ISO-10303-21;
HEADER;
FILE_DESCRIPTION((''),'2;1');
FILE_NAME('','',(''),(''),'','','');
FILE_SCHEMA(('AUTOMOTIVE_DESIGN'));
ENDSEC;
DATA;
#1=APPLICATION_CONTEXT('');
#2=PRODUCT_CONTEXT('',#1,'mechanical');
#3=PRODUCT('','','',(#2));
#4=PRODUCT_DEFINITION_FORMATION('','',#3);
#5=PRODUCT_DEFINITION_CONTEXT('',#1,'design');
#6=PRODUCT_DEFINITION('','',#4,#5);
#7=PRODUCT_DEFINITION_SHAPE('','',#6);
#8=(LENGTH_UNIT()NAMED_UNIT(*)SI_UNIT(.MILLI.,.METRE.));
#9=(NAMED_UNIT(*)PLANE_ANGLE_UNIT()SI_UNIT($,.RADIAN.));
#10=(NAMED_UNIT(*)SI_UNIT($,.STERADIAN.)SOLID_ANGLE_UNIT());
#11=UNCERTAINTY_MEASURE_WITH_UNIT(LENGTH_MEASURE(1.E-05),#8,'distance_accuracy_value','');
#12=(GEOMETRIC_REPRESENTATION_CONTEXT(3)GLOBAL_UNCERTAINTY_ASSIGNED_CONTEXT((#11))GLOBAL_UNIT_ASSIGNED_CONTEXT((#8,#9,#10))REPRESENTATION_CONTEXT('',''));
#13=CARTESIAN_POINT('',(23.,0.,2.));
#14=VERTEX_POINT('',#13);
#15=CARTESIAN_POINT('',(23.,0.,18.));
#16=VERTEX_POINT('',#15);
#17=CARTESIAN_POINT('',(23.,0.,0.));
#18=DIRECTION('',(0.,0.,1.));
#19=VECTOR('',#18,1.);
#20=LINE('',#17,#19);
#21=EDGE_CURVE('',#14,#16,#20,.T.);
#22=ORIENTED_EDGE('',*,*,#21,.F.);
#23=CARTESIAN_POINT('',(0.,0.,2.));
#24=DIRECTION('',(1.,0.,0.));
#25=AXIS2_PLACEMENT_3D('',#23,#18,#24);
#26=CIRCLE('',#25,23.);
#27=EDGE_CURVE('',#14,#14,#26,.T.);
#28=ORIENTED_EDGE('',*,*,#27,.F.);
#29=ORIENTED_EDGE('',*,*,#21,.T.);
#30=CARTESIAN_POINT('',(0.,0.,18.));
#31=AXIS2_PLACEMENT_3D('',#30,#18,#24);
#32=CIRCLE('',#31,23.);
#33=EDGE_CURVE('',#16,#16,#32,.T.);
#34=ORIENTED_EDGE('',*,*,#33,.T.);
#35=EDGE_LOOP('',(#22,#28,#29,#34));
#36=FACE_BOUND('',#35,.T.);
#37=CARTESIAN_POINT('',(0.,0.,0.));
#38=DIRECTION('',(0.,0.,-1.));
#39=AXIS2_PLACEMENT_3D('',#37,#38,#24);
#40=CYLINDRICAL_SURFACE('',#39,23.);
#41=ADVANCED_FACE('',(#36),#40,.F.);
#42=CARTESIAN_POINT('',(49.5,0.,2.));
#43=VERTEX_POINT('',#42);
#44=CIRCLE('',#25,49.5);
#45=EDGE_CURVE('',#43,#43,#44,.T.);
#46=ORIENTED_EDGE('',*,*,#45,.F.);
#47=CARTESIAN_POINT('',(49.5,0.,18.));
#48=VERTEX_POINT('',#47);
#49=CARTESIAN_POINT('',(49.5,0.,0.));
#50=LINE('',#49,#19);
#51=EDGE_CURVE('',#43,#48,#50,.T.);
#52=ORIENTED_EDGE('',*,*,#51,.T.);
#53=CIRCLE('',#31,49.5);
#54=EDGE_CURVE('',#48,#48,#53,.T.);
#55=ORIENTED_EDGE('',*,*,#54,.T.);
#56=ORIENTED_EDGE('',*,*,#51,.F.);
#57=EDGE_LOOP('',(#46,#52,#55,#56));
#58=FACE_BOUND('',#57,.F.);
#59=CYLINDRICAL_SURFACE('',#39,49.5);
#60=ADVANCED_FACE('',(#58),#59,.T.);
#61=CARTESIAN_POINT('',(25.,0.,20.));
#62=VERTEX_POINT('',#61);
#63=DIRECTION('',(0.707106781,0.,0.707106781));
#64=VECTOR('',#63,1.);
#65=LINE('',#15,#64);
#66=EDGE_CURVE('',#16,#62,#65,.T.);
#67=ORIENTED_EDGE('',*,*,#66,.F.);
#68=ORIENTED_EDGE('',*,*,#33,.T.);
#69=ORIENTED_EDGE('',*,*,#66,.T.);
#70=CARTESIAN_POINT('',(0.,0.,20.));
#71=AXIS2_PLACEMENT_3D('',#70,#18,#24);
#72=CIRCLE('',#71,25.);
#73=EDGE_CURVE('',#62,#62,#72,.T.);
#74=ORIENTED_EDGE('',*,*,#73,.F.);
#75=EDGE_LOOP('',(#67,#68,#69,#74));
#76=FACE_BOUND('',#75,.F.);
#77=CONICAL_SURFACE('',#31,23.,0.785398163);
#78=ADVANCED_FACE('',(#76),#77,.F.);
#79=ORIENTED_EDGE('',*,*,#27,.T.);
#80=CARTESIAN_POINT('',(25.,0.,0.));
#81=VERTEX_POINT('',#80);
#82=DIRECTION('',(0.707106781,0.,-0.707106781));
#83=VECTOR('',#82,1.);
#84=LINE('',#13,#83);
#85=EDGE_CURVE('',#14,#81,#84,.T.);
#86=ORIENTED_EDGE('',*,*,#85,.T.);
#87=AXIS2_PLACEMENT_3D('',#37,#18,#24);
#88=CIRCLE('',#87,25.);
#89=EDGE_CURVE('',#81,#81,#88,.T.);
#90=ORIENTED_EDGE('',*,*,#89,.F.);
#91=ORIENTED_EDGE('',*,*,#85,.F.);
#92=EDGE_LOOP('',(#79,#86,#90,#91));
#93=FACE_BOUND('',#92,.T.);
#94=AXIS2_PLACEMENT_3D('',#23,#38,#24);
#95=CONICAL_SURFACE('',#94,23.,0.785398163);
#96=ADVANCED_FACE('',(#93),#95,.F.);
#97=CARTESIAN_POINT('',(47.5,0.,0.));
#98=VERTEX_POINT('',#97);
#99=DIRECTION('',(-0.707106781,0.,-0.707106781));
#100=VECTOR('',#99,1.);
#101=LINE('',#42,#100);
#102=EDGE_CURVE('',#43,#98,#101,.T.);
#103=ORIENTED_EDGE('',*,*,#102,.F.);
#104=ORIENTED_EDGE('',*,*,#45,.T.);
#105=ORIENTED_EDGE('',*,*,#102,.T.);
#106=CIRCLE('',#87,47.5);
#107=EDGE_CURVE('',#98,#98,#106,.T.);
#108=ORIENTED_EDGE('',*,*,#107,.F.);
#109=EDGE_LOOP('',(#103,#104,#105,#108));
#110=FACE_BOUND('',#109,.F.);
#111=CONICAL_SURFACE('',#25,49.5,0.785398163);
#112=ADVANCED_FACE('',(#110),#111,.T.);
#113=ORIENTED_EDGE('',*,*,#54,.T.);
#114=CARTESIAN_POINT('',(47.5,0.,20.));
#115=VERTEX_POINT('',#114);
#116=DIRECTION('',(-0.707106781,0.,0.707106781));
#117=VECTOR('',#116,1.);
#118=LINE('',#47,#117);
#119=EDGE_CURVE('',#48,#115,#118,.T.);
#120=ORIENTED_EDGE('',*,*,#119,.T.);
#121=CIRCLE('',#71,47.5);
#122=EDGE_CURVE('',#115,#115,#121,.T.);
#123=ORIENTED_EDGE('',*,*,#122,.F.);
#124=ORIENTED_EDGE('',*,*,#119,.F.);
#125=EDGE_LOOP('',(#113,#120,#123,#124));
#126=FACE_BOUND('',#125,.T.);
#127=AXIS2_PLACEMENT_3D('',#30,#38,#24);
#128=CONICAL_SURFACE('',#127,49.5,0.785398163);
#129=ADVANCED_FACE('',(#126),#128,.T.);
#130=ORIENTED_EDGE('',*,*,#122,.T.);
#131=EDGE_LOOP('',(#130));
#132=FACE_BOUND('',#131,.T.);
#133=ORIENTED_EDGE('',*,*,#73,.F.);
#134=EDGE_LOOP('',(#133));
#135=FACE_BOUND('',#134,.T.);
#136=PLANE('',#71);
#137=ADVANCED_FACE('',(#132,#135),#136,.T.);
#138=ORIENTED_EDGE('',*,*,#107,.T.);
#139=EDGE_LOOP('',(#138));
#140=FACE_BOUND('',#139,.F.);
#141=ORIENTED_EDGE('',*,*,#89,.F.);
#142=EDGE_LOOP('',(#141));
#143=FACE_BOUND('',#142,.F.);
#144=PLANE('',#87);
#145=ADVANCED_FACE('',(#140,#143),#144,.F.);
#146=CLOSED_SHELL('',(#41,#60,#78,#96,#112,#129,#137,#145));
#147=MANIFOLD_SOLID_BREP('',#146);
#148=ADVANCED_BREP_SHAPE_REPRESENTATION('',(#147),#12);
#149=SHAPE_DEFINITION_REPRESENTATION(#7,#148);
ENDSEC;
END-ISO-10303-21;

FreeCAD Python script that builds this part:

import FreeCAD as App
import Part
import Sketcher

V = App.Vector


def edges_at(feature, points):
    """Names of the edges that pass closest to the given points."""
    edges = feature.Shape.Edges
    near = lambda p: min(range(len(edges)), key=lambda i: edges[i].distToShape(Part.Vertex(*p))[0])
    return sorted({f"Edge{near(p) + 1}" for p in points})

doc = App.newDocument("Part")
body = doc.addObject("PartDesign::Body", "Body")

# Sketch on XY plane
sketch1 = body.newObject("Sketcher::SketchObject", "Sketch")
sketch1.AttachmentSupport = (doc.getObject("XY_Plane"), [""])
sketch1.MapMode = "FlatFace"
sketch1.addGeometry(Part.Circle(V(0, 0, 0), V(0, 0, 1), 50), False)
sketch1.addGeometry(Part.Circle(V(0, 0, 0), V(0, 0, 1), 23), False)
sketch1.addConstraint(Sketcher.Constraint("Coincident", 0, 3, -1, 1))
sketch1.addConstraint(Sketcher.Constraint("Coincident", 1, 3, -1, 1))
sketch1.addConstraint(Sketcher.Constraint("Diameter", 0, 99.0))
sketch1.addConstraint(Sketcher.Constraint("Diameter", 1, 46.0))
pad1 = body.newObject("PartDesign::Pad", "Pad")
pad1.Profile = sketch1
pad1.Length = 20
doc.recompute()

chamfer = body.newObject("PartDesign::Chamfer", "Chamfer")
chamfer.Base = (pad1, edges_at(pad1, [
    (-23, 0, 20),
    (-49.5, 0, 20),
    (-23, 0, 0),
    (-49.5, 0, 0),
]))
chamfer.Size = 2

doc.recompute()
